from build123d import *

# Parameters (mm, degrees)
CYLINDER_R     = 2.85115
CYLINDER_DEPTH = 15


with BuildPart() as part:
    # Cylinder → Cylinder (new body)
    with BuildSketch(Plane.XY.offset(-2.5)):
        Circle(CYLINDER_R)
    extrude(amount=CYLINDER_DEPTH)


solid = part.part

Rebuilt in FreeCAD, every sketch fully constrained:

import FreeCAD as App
import Part
import Sketcher
from FreeCAD import Vector
Q = App.Units.Quantity

doc = App.newDocument("Part")
params = doc.addObject("Spreadsheet::Sheet", "Params")
for row, (alias, value) in enumerate([
    ("pad1_length", "15 mm"),
], start=1):
    params.set(f"A{row}", alias)
    params.set(f"B{row}", "=" + value)
    params.setAlias(f"B{row}", alias)

body = doc.addObject("PartDesign::Body", "Body")

# Sketch on XY plane
sketch1 = body.newObject("Sketcher::SketchObject", "Sketch")
sketch1.AttachmentSupport = (doc.getObject("XY_Plane"), [""])
sketch1.MapMode = "FlatFace"
sketch1.AttachmentOffset = App.Placement(Vector(0, 0, -2.5), App.Rotation())
sketch1.addGeometry(Part.Circle(Vector(0, 0, 0), Vector(0, 0, 1), 2.9), False)
sketch1.addConstraint(Sketcher.Constraint("Coincident", 0, 3, -1, 1))
sketch1.addConstraint(Sketcher.Constraint("Diameter", 0, Q("5.7023 mm")))
pad1 = body.newObject("PartDesign::Pad", "Pad")
pad1.Profile = sketch1
pad1.setExpression("Length", "Params.pad1_length")

doc.recompute()
